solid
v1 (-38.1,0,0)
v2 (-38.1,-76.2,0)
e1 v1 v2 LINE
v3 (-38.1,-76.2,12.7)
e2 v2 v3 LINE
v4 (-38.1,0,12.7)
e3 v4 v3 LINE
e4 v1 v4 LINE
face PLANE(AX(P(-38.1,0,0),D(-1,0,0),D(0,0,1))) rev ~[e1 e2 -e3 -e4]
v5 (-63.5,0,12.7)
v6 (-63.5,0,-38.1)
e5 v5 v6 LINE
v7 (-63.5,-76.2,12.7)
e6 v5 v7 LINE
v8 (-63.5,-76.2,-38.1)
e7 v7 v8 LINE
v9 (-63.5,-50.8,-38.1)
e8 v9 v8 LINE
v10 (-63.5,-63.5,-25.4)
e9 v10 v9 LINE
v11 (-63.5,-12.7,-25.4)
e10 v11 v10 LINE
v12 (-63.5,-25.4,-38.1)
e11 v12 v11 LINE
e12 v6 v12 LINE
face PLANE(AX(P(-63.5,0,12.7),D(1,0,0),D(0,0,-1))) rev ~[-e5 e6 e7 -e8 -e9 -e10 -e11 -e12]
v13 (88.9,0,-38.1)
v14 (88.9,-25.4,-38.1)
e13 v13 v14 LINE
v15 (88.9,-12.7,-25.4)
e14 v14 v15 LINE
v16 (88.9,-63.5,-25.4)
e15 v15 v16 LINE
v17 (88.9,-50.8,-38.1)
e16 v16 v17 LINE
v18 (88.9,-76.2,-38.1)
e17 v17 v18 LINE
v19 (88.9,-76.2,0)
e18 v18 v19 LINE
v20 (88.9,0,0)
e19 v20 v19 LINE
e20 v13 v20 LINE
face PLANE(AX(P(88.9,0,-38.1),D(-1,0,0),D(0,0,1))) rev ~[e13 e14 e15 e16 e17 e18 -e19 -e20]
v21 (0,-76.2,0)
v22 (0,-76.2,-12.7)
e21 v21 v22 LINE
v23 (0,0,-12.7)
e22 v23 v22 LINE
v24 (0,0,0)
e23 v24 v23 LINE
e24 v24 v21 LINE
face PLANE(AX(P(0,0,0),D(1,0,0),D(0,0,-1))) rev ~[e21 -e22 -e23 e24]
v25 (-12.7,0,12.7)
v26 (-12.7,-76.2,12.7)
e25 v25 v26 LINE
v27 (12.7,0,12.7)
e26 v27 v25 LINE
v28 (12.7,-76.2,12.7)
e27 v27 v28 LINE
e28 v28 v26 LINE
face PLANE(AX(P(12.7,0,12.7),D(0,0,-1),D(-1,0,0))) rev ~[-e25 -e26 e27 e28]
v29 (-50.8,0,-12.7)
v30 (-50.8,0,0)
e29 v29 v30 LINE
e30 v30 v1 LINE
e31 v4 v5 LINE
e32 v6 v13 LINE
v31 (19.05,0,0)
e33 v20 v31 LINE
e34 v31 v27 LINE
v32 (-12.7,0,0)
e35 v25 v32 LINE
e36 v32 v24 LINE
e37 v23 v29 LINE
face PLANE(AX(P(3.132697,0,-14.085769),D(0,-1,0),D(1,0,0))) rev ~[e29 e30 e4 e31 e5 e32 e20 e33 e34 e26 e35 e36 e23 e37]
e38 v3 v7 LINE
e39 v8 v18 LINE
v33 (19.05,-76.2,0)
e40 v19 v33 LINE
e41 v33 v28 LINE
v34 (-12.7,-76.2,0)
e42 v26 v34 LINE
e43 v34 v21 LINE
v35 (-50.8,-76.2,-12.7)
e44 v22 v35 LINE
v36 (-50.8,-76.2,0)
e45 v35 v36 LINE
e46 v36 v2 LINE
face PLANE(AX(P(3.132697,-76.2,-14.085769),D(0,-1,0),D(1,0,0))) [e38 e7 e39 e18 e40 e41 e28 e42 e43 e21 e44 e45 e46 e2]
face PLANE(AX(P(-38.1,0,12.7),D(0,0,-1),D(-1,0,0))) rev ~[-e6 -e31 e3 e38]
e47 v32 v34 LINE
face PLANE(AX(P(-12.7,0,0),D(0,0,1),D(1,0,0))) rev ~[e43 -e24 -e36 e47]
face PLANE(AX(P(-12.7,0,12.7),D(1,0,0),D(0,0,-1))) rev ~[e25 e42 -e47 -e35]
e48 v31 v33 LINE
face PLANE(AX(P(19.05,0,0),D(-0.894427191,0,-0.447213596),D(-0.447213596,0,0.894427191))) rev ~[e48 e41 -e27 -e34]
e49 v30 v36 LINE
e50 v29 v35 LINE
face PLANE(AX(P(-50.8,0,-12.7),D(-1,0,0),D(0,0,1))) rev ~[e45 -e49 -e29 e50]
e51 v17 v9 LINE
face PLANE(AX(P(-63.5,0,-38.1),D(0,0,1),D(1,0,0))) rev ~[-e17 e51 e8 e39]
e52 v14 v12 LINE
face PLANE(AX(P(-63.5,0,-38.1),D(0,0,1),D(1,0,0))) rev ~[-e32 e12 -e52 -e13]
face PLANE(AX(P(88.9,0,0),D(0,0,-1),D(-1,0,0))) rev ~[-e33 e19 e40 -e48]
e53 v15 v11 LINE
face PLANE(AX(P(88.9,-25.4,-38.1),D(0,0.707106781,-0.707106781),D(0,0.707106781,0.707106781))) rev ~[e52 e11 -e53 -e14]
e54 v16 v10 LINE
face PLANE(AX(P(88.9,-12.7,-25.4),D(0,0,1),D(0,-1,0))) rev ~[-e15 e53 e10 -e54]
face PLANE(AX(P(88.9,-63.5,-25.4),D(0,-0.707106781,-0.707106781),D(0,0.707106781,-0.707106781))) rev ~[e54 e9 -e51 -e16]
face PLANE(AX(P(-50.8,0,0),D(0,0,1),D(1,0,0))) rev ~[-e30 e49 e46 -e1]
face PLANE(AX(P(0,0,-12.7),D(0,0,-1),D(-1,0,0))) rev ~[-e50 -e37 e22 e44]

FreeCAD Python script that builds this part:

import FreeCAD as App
import Part
import Sketcher

V = App.Vector
Q = App.Units.Quantity

doc = App.newDocument("Part")
body = doc.addObject("PartDesign::Body", "Body")

sketch1 = body.newObject("Sketcher::SketchObject", "Sketch")
sketch1.AttachmentSupport = (doc.getObject("XZ_Plane"), [""])
sketch1.MapMode = "FlatFace"
sketch1.addGeometry([
    Part.LineSegment(V(-38, 13, 0), V(-64, 13, 0)),
    Part.LineSegment(V(-64, 13, 0), V(-64, -38, 0)),
    Part.LineSegment(V(-64, -38, 0), V(89, -38, 0)),
    Part.LineSegment(V(89, -38, 0), V(89, 0, 0)),
    Part.LineSegment(V(89, 0, 0), V(19, 0, 0)),
    Part.LineSegment(V(19, 0, 0), V(13, 13, 0)),
    Part.LineSegment(V(13, 13, 0), V(-13, 13, 0)),
    Part.LineSegment(V(-13, 13, 0), V(-13, 0, 0)),
    Part.LineSegment(V(-13, 0, 0), V(0, 0, 0)),
    Part.LineSegment(V(0, 0, 0), V(0, -13, 0)),
    Part.LineSegment(V(0, -13, 0), V(-51, -13, 0)),
    Part.LineSegment(V(-51, -13, 0), V(-51, 0, 0)),
    Part.LineSegment(V(-51, 0, 0), V(-38, 0, 0)),
    Part.LineSegment(V(-38, 0, 0), V(-38, 13, 0)),
], False)
sketch1.addConstraint([
    Sketcher.Constraint("Coincident", 0, 2, 1, 1),
    Sketcher.Constraint("Coincident", 1, 2, 2, 1),
    Sketcher.Constraint("Coincident", 2, 2, 3, 1),
    Sketcher.Constraint("Coincident", 3, 2, 4, 1),
    Sketcher.Constraint("Coincident", 4, 2, 5, 1),
    Sketcher.Constraint("Coincident", 5, 2, 6, 1),
    Sketcher.Constraint("Coincident", 6, 2, 7, 1),
    Sketcher.Constraint("Coincident", 7, 2, 8, 1),
    Sketcher.Constraint("Coincident", 8, 2, 9, 1),
    Sketcher.Constraint("Coincident", 9, 2, 10, 1),
    Sketcher.Constraint("Coincident", 10, 2, 11, 1),
    Sketcher.Constraint("Coincident", 11, 2, 12, 1),
    Sketcher.Constraint("Coincident", 12, 2, 13, 1),
    Sketcher.Constraint("Coincident", 13, 2, 0, 1),
    Sketcher.Constraint("Horizontal", 0),
    Sketcher.Constraint("Vertical", 1),
    Sketcher.Constraint("Horizontal", 2),
    Sketcher.Constraint("Vertical", 3),
    Sketcher.Constraint("Horizontal", 4),
    Sketcher.Constraint("Horizontal", 6),
    Sketcher.Constraint("Vertical", 7),
    Sketcher.Constraint("Horizontal", 8),
    Sketcher.Constraint("Vertical", 9),
    Sketcher.Constraint("Horizontal", 10),
    Sketcher.Constraint("Vertical", 11),
    Sketcher.Constraint("Horizontal", 12),
    Sketcher.Constraint("Vertical", 13),
    Sketcher.Constraint("Coincident", 8, 2, -1, 1),
    Sketcher.Constraint("PointOnObject", 3, 2, -1),
    Sketcher.Constraint("PointOnObject", 11, 2, -1),
    Sketcher.Constraint("Horizontal", 0, 2, 5, 2),
    Sketcher.Constraint("Equal", 0, 6),
    Sketcher.Constraint("Equal", 8, 12),
    Sketcher.Constraint("Equal", 10, 1),
    Sketcher.Constraint("Equal", 12, 7),
    Sketcher.Constraint("Equal", 7, 9),
    Sketcher.Constraint("DistanceX", 0, 2, 0, 1, Q("1 in")),
    Sketcher.Constraint("DistanceX", 2, 1, 2, 2, Q("6 in")),
    Sketcher.Constraint("DistanceX", 10, 2, 10, 1, Q("2 in")),
    Sketcher.Constraint("DistanceX", 8, 1, 8, 2, Q("0.5 in")),
    Sketcher.Constraint("DistanceX", 4, 2, 4, 1, Q("2.75 in")),
])
pad1 = body.newObject("PartDesign::Pad", "Pad")
pad1.Profile = sketch1
pad1.Length = Q("3 in")

sketch2 = body.newObject("Sketcher::SketchObject", "Sketch001")
sketch2.AttachmentSupport = (doc.getObject("YZ_Plane"), [""])
sketch2.MapMode = "FlatFace"
sketch2.AttachmentOffset = App.Placement(V(0, 0, 3.5 * 25.4), App.Rotation())
sketch2.addGeometry([
    Part.LineSegment(V(-64, -25, 0), V(-51, -38, 0)),
    Part.LineSegment(V(-51, -38, 0), V(-25, -38, 0)),
    Part.LineSegment(V(-25, -38, 0), V(-13, -25, 0)),
    Part.LineSegment(V(-13, -25, 0), V(-64, -25, 0)),
], False)
sketch2.addConstraint([
    Sketcher.Constraint("Coincident", 0, 2, 1, 1),
    Sketcher.Constraint("Coincident", 1, 2, 2, 1),
    Sketcher.Constraint("Coincident", 2, 2, 3, 1),
    Sketcher.Constraint("Coincident", 3, 2, 0, 1),
    Sketcher.Constraint("Horizontal", 1),
    Sketcher.Constraint("Horizontal", 3),
    Sketcher.Constraint("Perpendicular", 0, 2),
    Sketcher.Constraint("Equal", 0, 2),
    Sketcher.Constraint("DistanceX", 1, 1, 1, 2, Q("1 in")),
    Sketcher.Constraint("DistanceX", 3, 2, 3, 1, Q("2 in")),
    Sketcher.Constraint("DistanceX", 0, 2, -1, 1, Q("2 in")),
    Sketcher.Constraint("DistanceY", 2, 2, -1, 1, Q("1 in")),
])
pocket1 = body.newObject("PartDesign::Pocket", "Pocket")
pocket1.Profile = sketch2
pocket1.Length = Q("6 in")

doc.recompute()
